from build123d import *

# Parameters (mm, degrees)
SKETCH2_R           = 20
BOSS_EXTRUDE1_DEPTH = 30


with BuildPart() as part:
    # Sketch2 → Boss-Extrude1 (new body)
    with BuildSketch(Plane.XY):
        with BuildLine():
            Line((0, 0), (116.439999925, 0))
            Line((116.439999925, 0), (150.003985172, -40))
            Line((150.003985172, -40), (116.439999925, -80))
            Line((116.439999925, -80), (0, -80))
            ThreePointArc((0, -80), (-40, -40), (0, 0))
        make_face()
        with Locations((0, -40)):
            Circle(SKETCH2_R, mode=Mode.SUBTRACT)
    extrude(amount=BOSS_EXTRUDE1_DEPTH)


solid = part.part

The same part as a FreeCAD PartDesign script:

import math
import FreeCAD as App
import Part
import Sketcher

V = App.Vector
Q = App.Units.Quantity

doc = App.newDocument("Part")
params = doc.addObject("Spreadsheet::Sheet", "Params")
for row, (alias, value) in enumerate([
    ("sketch1_diameter", "40 mm"),
    ("sketch1_radius", "40 mm"),
    ("sketch1_width", "116.44 mm"),
    ("pad1_length", "30 mm"),
], start=1):
    params.set(f"A{row}", alias)
    params.set(f"B{row}", "=" + value)
    params.setAlias(f"B{row}", alias)

body = doc.addObject("PartDesign::Body", "Body")

# Sketch on XY plane
sketch1 = doc.addObject("Sketcher::SketchObject", "Sketch")
body.addObject(sketch1)
sketch1.AttachmentSupport = (doc.XY_Plane, [""])
sketch1.MapMode = "FlatFace"
sketch1.addGeometry(Part.LineSegment(V(116.44, 0, 0), V(0, 0, 0)), False)
sketch1.addGeometry(Part.ArcOfCircle(Part.Circle(V(0, -40, 0), V(0, 0, 1), 40), math.radians(90), math.radians(270)), False)
sketch1.addGeometry(Part.LineSegment(V(0, -80, 0), V(116.44, -80, 0)), False)
sketch1.addGeometry(Part.LineSegment(V(116.44, -80, 0), V(150.003985, -40, 0)), False)
sketch1.addGeometry(Part.LineSegment(V(150.003985, -40, 0), V(116.44, 0, 0)), False)
sketch1.addGeometry(Part.Circle(V(0, -40, 0), V(0, 0, 1), 20), False)
sketch1.addConstraint(Sketcher.Constraint("Tangent", 0, 2, 1, 1))
sketch1.addConstraint(Sketcher.Constraint("Tangent", 1, 2, 2, 1))
sketch1.addConstraint(Sketcher.Constraint("Coincident", 2, 2, 3, 1))
sketch1.addConstraint(Sketcher.Constraint("Coincident", 3, 2, 4, 1))
sketch1.addConstraint(Sketcher.Constraint("Coincident", 4, 2, 0, 1))
sketch1.addConstraint(Sketcher.Constraint("Horizontal", 0))
sketch1.addConstraint(Sketcher.Constraint("Horizontal", 2))
sketch1.addConstraint(Sketcher.Constraint("Coincident", 0, 2, -1, 1))
sketch1.addConstraint(Sketcher.Constraint("Coincident", 5, 3, 1, 3))
sketch1.addConstraint(Sketcher.Constraint("Horizontal", 5, 3, 3, 2))
sketch1.addConstraint(Sketcher.Constraint("Vertical", 2, 2, 4, 2))
sketch1.addConstraint(Sketcher.Constraint("Diameter", 5, Q("40 mm")))
sketch1.addConstraint(Sketcher.Constraint("Radius", 1, Q("40 mm")))
sketch1.addConstraint(Sketcher.Constraint("Angle", 3, Q("50 deg")))
sketch1.addConstraint(Sketcher.Constraint("DistanceX", 0, 2, 0, 1, Q("116.44 mm")))
sketch1.setExpression("Constraints[11]", "Params.sketch1_diameter")
sketch1.setExpression("Constraints[12]", "Params.sketch1_radius")
sketch1.setExpression("Constraints[14]", "Params.sketch1_width")
pad1 = doc.addObject("PartDesign::Pad", "Pad")
body.addObject(pad1)
pad1.Profile = sketch1
pad1.setExpression("Length", "Params.pad1_length")

doc.recompute()
